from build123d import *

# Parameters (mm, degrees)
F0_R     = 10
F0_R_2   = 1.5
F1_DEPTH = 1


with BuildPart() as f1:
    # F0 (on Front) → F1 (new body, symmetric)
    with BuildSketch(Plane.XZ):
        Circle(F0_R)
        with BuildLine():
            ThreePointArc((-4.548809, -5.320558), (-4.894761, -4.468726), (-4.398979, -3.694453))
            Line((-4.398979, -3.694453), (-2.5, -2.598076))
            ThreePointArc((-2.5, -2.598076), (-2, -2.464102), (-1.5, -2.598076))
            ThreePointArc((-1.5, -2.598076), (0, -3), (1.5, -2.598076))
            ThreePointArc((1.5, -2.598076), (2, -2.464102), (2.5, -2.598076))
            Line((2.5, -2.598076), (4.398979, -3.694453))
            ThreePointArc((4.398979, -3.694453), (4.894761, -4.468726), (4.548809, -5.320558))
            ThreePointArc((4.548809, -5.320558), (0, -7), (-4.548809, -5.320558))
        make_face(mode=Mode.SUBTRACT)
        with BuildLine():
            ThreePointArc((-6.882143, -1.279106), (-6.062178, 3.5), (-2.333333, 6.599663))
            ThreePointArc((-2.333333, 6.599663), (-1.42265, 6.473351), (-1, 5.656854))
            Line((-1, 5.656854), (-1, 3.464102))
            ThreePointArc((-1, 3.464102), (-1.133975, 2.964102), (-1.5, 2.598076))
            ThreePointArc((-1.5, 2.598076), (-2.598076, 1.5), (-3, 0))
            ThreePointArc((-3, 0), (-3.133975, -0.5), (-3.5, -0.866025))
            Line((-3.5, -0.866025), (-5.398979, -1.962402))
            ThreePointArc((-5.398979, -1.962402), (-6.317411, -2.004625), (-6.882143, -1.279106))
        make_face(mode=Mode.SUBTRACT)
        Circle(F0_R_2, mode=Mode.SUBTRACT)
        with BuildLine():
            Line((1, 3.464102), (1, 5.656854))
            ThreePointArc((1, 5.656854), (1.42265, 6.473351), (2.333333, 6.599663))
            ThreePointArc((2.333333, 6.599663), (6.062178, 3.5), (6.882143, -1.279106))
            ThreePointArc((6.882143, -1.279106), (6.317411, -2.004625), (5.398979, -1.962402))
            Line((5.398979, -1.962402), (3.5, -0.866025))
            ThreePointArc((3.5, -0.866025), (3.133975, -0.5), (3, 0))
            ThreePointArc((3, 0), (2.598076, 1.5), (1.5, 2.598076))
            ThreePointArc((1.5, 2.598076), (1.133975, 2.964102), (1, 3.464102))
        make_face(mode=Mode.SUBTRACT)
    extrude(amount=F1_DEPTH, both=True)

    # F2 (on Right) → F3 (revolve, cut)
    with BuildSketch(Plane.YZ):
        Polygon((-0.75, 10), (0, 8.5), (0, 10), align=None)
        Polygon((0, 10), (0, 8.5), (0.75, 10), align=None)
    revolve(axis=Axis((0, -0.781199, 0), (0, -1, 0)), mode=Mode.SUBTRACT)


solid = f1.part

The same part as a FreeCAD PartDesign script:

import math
import FreeCAD as App
import Part
import Sketcher
from FreeCAD import Vector

doc = App.newDocument("Part")
body = doc.addObject("PartDesign::Body", "Body")

# Sketch on XZ plane
sketch1 = body.newObject("Sketcher::SketchObject", "Sketch")
sketch1.AttachmentSupport = (doc.getObject("XZ_Plane"), [""])
sketch1.MapMode = "FlatFace"
sketch1.addGeometry(Part.Circle(Vector(0, 0, 0), Vector(0, 0, 1), 10), False)
sketch1.addGeometry(Part.ArcOfCircle(Part.Circle(Vector(0, 0, 0), Vector(0, 0, 1), 7), math.radians(-130.528773), math.radians(-49.471227)), False)
sketch1.addGeometry(Part.ArcOfCircle(Part.Circle(Vector(-3.898979, -4.560478, 0), Vector(0, 0, 1), 1), math.radians(119.999984), math.radians(229.47123)), False)
sketch1.addGeometry(Part.LineSegment(Vector(-4.398979, -3.694453, 0), Vector(-2.5, -2.598076, 0)), False)
sketch1.addGeometry(Part.ArcOfCircle(Part.Circle(Vector(-2, -3.464106, 0), Vector(0, 0, 1), 1.000004), math.radians(60.000127), math.radians(119.999873)), False)
sketch1.addGeometry(Part.ArcOfCircle(Part.Circle(Vector(0, -0.000001, 0), Vector(0, 0, 1), 2.999999), math.radians(-120.000015), math.radians(-59.999985)), False)
sketch1.addGeometry(Part.ArcOfCircle(Part.Circle(Vector(2, -3.464106, 0), Vector(0, 0, 1), 1.000004), math.radians(60.000127), math.radians(119.999873)), False)
sketch1.addGeometry(Part.LineSegment(Vector(2.5, -2.598076, 0), Vector(4.398979, -3.694453, 0)), False)
sketch1.addGeometry(Part.ArcOfCircle(Part.Circle(Vector(3.898979, -4.560478, 0), Vector(0, 0, 1), 1), math.radians(-49.47123), math.radians(60.000016)), False)
sketch1.addGeometry(Part.ArcOfCircle(Part.Circle(Vector(-5.898979, -1.096376, 0), Vector(0, 0, 1), 1.000001), math.radians(-169.471199), math.radians(-59.999998)), False)
sketch1.addGeometry(Part.ArcOfCircle(Part.Circle(Vector(-0.000001, 0, 0), Vector(0, 0, 1), 6.999999), math.radians(109.471211), math.radians(190.528782)), False)
sketch1.addGeometry(Part.ArcOfCircle(Part.Circle(Vector(-2, 5.656854, 0), Vector(0, 0, 1), 1), math.radians(-0.000026), math.radians(109.471235)), False)
sketch1.addGeometry(Part.LineSegment(Vector(-1, 5.656854, 0), Vector(-1, 3.464102, 0)), False)
sketch1.addGeometry(Part.ArcOfCircle(Part.Circle(Vector(-2.000004, 3.464104, 0), Vector(0, 0, 1), 1.000004), math.radians(-59.999861), math.radians(-0.000104)), False)
sketch1.addGeometry(Part.ArcOfCircle(Part.Circle(Vector(0, 0, 0), Vector(0, 0, 1), 3.000001), math.radians(120.000006), math.radians(179.99999)), False)
sketch1.addGeometry(Part.ArcOfCircle(Part.Circle(Vector(-4.000001, 0.000001, 0), Vector(0, 0, 1), 1.000001), math.radians(-59.999968), math.radians(-0.000055)), False)
sketch1.addGeometry(Part.LineSegment(Vector(-3.5, -0.866025, 0), Vector(-5.398979, -1.962402, 0)), False)
sketch1.addGeometry(Part.Circle(Vector(0, 0, 0), Vector(0, 0, 1), 1.5), False)
sketch1.addGeometry(Part.ArcOfCircle(Part.Circle(Vector(2.000004, 3.464104, 0), Vector(0, 0, 1), 1.000004), math.radians(-179.999896), math.radians(-120.000139)), False)
sketch1.addGeometry(Part.LineSegment(Vector(1, 3.464102, 0), Vector(1, 5.656854, 0)), False)
sketch1.addGeometry(Part.ArcOfCircle(Part.Circle(Vector(2, 5.656854, 0), Vector(0, 0, 1), 1), math.radians(70.528765), math.radians(180.000026)), False)
sketch1.addGeometry(Part.ArcOfCircle(Part.Circle(Vector(0.000001, 0, 0), Vector(0, 0, 1), 6.999999), math.radians(-10.528782), math.radians(70.528789)), False)
sketch1.addGeometry(Part.ArcOfCircle(Part.Circle(Vector(5.898979, -1.096376, 0), Vector(0, 0, 1), 1.000001), math.radians(-120.000002), math.radians(-10.528801)), False)
sketch1.addGeometry(Part.LineSegment(Vector(5.398979, -1.962402, 0), Vector(3.5, -0.866025, 0)), False)
sketch1.addGeometry(Part.ArcOfCircle(Part.Circle(Vector(4.000001, 0.000001, 0), Vector(0, 0, 1), 1.000001), math.radians(-179.999945), math.radians(-120.000032)), False)
sketch1.addGeometry(Part.ArcOfCircle(Part.Circle(Vector(0, 0, 0), Vector(0, 0, 1), 3.000001), math.radians(0.00001), math.radians(59.999994)), False)
sketch1.addConstraint(Sketcher.Constraint("Tangent", 1, 1, 2, 2))
sketch1.addConstraint(Sketcher.Constraint("Tangent", 2, 1, 3, 1))
sketch1.addConstraint(Sketcher.Constraint("Coincident", 3, 2, 4, 2))
sketch1.addConstraint(Sketcher.Constraint("Coincident", 4, 1, 5, 1))
sketch1.addConstraint(Sketcher.Constraint("Coincident", 5, 2, 6, 2))
sketch1.addConstraint(Sketcher.Constraint("Coincident", 6, 1, 7, 1))
sketch1.addConstraint(Sketcher.Constraint("Tangent", 7, 2, 8, 2))
sketch1.addConstraint(Sketcher.Constraint("Tangent", 8, 1, 1, 2))
sketch1.addConstraint(Sketcher.Constraint("Tangent", 9, 1, 10, 2))
sketch1.addConstraint(Sketcher.Constraint("Tangent", 10, 1, 11, 2))
sketch1.addConstraint(Sketcher.Constraint("Tangent", 11, 1, 12, 1))
sketch1.addConstraint(Sketcher.Constraint("Tangent", 12, 2, 13, 2))
sketch1.addConstraint(Sketcher.Constraint("Coincident", 13, 1, 14, 1))
sketch1.addConstraint(Sketcher.Constraint("Tangent", 14, 2, 15, 2))
sketch1.addConstraint(Sketcher.Constraint("Tangent", 15, 1, 16, 1))
sketch1.addConstraint(Sketcher.Constraint("Tangent", 16, 2, 9, 2))
sketch1.addConstraint(Sketcher.Constraint("Tangent", 18, 1, 19, 1))
sketch1.addConstraint(Sketcher.Constraint("Tangent", 19, 2, 20, 2))
sketch1.addConstraint(Sketcher.Constraint("Tangent", 20, 1, 21, 2))
sketch1.addConstraint(Sketcher.Constraint("Tangent", 21, 1, 22, 2))
sketch1.addConstraint(Sketcher.Constraint("Tangent", 22, 1, 23, 1))
sketch1.addConstraint(Sketcher.Constraint("Tangent", 23, 2, 24, 2))
sketch1.addConstraint(Sketcher.Constraint("Tangent", 24, 1, 25, 1))
sketch1.addConstraint(Sketcher.Constraint("Coincident", 25, 2, 18, 2))
sketch1.addConstraint(Sketcher.Constraint("Vertical", 12))
sketch1.addConstraint(Sketcher.Constraint("Vertical", 19))
sketch1.addConstraint(Sketcher.Constraint("Coincident", 0, 3, -1, 1))
sketch1.addConstraint(Sketcher.Constraint("Coincident", 1, 3, -1, 1))
sketch1.addConstraint(Sketcher.Constraint("Coincident", 5, 3, -1, 1))
sketch1.addConstraint(Sketcher.Constraint("Coincident", 10, 3, -1, 1))
sketch1.addConstraint(Sketcher.Constraint("Coincident", 14, 3, -1, 1))
sketch1.addConstraint(Sketcher.Constraint("Coincident", 17, 3, -1, 1))
sketch1.addConstraint(Sketcher.Constraint("Coincident", 21, 3, -1, 1))
sketch1.addConstraint(Sketcher.Constraint("Coincident", 25, 3, -1, 1))
sketch1.addConstraint(Sketcher.Constraint("Equal", 4, 6))
sketch1.addConstraint(Sketcher.Constraint("Equal", 2, 8))
sketch1.addConstraint(Sketcher.Constraint("Equal", 8, 9))
sketch1.addConstraint(Sketcher.Constraint("Equal", 1, 10))
sketch1.addConstraint(Sketcher.Constraint("Equal", 9, 11))
sketch1.addConstraint(Sketcher.Constraint("Equal", 6, 13))
sketch1.addConstraint(Sketcher.Constraint("Equal", 5, 14))
sketch1.addConstraint(Sketcher.Constraint("Equal", 11, 15))
sketch1.addConstraint(Sketcher.Constraint("Equal", 13, 18))
sketch1.addConstraint(Sketcher.Constraint("Equal", 15, 20))
sketch1.addConstraint(Sketcher.Constraint("Equal", 10, 21))
sketch1.addConstraint(Sketcher.Constraint("Equal", 20, 22))
sketch1.addConstraint(Sketcher.Constraint("Equal", 22, 24))
sketch1.addConstraint(Sketcher.Constraint("Equal", 14, 25))
sketch1.addConstraint(Sketcher.Constraint("Symmetric", 3, 2, 6, 1, -2))
sketch1.addConstraint(Sketcher.Constraint("Symmetric", 16, 2, 22, 1, -2))
sketch1.addConstraint(Sketcher.Constraint("PointOnObject", 15, 3, -1))
sketch1.addConstraint(Sketcher.Constraint("Parallel", 3, 16))
sketch1.addConstraint(Sketcher.Constraint("Parallel", 7, 23))
sketch1.addConstraint(Sketcher.Constraint("Horizontal", 13, 3, 18, 3))
sketch1.addConstraint(Sketcher.Constraint("Horizontal", 3, 2, 4, 1))
sketch1.addConstraint(Sketcher.Constraint("Horizontal", 4, 1, 5, 2))
sketch1.addConstraint(Sketcher.Constraint("Horizontal", 13, 1, 25, 2))
sketch1.addConstraint(Sketcher.Constraint("Vertical", 4, 3, 11, 3))
sketch1.addConstraint(Sketcher.Constraint("Vertical", 4, 1, 13, 1))
sketch1.addConstraint(Sketcher.Constraint("Equal", 7, 16))
sketch1.addConstraint(Sketcher.Constraint("Diameter", 0, 20.0))
sketch1.addConstraint(Sketcher.Constraint("Diameter", 17, 3.0))
sketch1.addConstraint(Sketcher.Constraint("Radius", 1, 7.0))
sketch1.addConstraint(Sketcher.Constraint("Radius", 2, 1.0))
sketch1.addConstraint(Sketcher.Constraint("Radius", 5, 2.999999))
sketch1.addConstraint(Sketcher.Constraint("DistanceX", 4, 3, -1, 1, 2.0))
sketch1.addConstraint(Sketcher.Constraint("DistanceX", 9, 3, 2, 3, 2.0))
sketch1.addConstraint(Sketcher.Constraint("Radius", 4, 1.000004))
pad1 = body.newObject("PartDesign::Pad", "Pad")
pad1.Profile = sketch1
pad1.Length = 2
pad1.Midplane = True

# Sketch on YZ plane
sketch2 = body.newObject("Sketcher::SketchObject", "Sketch001")
sketch2.AttachmentSupport = (doc.getObject("YZ_Plane"), [""])
sketch2.MapMode = "FlatFace"
sketch2.addGeometry(Part.LineSegment(Vector(-0.75, 10, 0), Vector(0, 8.5, 0)), False)
sketch2.addGeometry(Part.LineSegment(Vector(0, 8.5, 0), Vector(0.75, 10, 0)), False)
sketch2.addGeometry(Part.LineSegment(Vector(0.75, 10, 0), Vector(-0.75, 10, 0)), False)
sketch2.addConstraint(Sketcher.Constraint("Coincident", 0, 2, 1, 1))
sketch2.addConstraint(Sketcher.Constraint("Coincident", 1, 2, 2, 1))
sketch2.addConstraint(Sketcher.Constraint("Coincident", 2, 2, 0, 1))
sketch2.addConstraint(Sketcher.Constraint("Horizontal", 2))
sketch2.addConstraint(Sketcher.Constraint("PointOnObject", 0, 2, -2))
sketch2.addConstraint(Sketcher.Constraint("Equal", 0, 1))
sketch2.addConstraint(Sketcher.Constraint("DistanceX", 2, 2, 2, 1, 1.5))
sketch2.addConstraint(Sketcher.Constraint("DistanceY", -1, 1, 1, 2, 10.0))
sketch2.addConstraint(Sketcher.Constraint("DistanceY", -1, 1, 0, 2, 8.5))
groove = body.newObject("PartDesign::Groove", "Groove")
groove.Profile = sketch2
groove.ReferenceAxis = (sketch2, ["H_Axis"])
groove.Angle = 360

doc.recompute()
